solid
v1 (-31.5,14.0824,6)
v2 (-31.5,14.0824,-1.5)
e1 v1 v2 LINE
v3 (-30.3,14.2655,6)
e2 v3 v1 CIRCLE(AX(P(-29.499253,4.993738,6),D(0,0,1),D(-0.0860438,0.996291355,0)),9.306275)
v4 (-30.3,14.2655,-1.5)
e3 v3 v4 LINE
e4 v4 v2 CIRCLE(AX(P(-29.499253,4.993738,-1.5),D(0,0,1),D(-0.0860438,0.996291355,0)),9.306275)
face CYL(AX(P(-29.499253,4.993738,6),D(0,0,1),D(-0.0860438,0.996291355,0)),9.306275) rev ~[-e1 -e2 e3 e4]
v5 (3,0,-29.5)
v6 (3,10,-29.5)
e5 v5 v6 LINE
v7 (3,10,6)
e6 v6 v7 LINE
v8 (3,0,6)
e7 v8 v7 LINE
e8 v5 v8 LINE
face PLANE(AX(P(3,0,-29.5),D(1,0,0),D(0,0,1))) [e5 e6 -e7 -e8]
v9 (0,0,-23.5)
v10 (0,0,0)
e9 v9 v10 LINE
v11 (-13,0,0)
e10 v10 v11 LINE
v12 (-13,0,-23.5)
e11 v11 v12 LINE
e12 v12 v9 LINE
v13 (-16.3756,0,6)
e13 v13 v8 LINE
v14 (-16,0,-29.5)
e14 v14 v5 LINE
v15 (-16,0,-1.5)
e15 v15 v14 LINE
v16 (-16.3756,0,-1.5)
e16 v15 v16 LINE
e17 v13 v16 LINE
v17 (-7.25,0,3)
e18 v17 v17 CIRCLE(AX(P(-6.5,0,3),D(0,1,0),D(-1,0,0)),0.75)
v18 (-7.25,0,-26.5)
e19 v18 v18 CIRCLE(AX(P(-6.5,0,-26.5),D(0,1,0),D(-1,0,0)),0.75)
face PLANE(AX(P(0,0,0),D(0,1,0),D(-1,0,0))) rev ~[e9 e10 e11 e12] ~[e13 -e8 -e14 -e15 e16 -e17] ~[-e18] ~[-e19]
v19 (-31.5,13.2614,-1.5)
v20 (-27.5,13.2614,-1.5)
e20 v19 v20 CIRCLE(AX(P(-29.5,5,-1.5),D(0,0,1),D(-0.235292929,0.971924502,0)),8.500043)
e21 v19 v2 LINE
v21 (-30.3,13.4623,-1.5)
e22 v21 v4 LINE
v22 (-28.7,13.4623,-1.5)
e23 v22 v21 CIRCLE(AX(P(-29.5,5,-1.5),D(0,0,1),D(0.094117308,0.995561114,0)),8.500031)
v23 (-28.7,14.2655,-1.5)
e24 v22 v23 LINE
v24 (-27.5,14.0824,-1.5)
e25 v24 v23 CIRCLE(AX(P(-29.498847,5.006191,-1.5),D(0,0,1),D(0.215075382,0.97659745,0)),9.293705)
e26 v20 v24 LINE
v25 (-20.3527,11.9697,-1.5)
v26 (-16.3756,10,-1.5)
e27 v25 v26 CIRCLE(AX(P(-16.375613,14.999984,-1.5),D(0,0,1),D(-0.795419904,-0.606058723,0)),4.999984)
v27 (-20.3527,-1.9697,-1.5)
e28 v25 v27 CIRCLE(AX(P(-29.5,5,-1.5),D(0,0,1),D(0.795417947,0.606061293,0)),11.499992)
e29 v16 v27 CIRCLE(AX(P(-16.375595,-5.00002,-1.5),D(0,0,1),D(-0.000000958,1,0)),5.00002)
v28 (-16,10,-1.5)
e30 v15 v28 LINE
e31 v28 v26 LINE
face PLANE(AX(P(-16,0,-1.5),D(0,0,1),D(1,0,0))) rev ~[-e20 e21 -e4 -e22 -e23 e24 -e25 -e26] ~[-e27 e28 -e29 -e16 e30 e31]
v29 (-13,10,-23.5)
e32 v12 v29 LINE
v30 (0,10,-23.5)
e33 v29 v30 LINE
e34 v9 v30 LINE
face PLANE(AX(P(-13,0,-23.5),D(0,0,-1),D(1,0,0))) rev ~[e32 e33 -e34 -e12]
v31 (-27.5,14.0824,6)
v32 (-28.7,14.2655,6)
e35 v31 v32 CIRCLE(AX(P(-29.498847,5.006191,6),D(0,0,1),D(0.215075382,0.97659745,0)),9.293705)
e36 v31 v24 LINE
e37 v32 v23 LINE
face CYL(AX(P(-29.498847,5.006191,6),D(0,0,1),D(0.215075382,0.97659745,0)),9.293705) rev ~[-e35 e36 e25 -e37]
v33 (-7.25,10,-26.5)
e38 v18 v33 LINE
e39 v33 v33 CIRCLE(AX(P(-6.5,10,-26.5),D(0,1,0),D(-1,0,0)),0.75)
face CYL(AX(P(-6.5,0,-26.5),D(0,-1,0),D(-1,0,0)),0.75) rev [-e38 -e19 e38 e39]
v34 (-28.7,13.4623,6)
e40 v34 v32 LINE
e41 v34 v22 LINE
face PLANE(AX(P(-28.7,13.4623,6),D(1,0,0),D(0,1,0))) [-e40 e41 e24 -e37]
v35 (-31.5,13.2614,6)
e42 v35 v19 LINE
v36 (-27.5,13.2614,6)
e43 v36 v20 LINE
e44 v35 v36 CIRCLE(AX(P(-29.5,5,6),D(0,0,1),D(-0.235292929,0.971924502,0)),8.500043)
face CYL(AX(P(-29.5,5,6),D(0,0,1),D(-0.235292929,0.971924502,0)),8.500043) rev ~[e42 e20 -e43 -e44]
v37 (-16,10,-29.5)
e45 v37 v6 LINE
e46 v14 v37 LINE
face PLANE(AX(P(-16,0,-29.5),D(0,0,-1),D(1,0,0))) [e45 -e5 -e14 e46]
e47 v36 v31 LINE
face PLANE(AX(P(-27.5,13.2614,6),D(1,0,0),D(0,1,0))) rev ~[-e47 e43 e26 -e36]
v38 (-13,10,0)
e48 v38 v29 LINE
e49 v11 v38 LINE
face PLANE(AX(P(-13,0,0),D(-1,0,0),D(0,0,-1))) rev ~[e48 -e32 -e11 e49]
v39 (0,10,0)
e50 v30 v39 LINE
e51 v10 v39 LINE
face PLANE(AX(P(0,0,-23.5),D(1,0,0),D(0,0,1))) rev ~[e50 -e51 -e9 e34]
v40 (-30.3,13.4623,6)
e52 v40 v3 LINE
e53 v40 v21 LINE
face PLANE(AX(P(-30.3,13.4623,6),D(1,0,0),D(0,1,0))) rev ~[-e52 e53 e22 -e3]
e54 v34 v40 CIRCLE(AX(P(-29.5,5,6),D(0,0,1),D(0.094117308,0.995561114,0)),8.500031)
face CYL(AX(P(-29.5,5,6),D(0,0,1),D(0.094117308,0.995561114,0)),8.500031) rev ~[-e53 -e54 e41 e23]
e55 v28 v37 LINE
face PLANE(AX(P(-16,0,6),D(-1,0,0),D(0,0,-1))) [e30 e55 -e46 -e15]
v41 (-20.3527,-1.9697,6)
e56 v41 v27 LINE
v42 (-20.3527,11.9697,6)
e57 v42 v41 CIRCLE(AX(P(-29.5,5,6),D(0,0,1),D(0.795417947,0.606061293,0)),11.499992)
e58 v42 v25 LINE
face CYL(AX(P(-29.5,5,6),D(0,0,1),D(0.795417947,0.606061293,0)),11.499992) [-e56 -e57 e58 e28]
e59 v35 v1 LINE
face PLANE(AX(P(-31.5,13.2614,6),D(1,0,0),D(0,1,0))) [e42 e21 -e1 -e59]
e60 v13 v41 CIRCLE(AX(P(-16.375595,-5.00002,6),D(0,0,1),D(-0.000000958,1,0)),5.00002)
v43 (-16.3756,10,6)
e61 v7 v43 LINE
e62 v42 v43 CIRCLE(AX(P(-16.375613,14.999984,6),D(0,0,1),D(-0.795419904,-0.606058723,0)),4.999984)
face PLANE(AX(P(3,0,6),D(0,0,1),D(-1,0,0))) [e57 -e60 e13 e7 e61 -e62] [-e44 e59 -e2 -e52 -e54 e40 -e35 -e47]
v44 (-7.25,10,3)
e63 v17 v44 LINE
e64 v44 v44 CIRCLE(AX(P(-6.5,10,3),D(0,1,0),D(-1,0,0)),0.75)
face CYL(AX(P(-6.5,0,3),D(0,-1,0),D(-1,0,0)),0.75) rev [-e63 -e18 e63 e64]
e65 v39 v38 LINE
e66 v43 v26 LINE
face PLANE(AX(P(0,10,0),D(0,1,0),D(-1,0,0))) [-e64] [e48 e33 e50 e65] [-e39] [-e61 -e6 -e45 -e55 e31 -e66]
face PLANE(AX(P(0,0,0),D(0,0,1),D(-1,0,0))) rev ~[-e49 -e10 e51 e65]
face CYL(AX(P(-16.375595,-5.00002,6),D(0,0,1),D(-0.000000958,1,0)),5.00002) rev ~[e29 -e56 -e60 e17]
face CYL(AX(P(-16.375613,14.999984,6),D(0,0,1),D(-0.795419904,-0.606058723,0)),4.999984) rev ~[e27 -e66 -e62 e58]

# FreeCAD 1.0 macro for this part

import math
import FreeCAD as App
import Part
import Sketcher
from FreeCAD import Vector
Q = App.Units.Quantity

doc = App.newDocument("Part")
body = doc.addObject("PartDesign::Body", "Body")

# Sketch on XZ plane
sketch1 = body.newObject("Sketcher::SketchObject", "Sketch")
sketch1.AttachmentSupport = (doc.getObject("XZ_Plane"), [""])
sketch1.MapMode = "FlatFace"
sketch1.addGeometry([
    Part.LineSegment(Vector(-16, 6, 0), Vector(3, 6, 0)),  # 0
    Part.LineSegment(Vector(3, 6, 0), Vector(3, -29.5, 0)),  # 1
    Part.LineSegment(Vector(3, -29.5, 0), Vector(-16, -29.5, 0)),  # 2
    Part.LineSegment(Vector(-16, -29.5, 0), Vector(-16, 6, 0)),  # 3
    Part.Circle(Vector(-6.5, -26.5, 0), Vector(0, 0, 1), 0.8),  # 4
    Part.LineSegment(Vector(0, -23.5, 0), Vector(0, 0, 0)),  # 5
    Part.LineSegment(Vector(0, 0, 0), Vector(-13, 0, 0)),  # 6
    Part.LineSegment(Vector(-13, 0, 0), Vector(-13, -23.5, 0)),  # 7
    Part.LineSegment(Vector(-13, -23.5, 0), Vector(0, -23.5, 0)),  # 8
    Part.Circle(Vector(-6.5, 3, 0), Vector(0, 0, 1), 0.8),  # 9
], False)
sketch1.addConstraint([
    Sketcher.Constraint("Coincident", 0, 2, 1, 1),
    Sketcher.Constraint("Coincident", 1, 2, 2, 1),
    Sketcher.Constraint("Coincident", 2, 2, 3, 1),
    Sketcher.Constraint("Coincident", 3, 2, 0, 1),
    Sketcher.Constraint("Coincident", 5, 2, 6, 1),
    Sketcher.Constraint("Coincident", 6, 2, 7, 1),
    Sketcher.Constraint("Coincident", 7, 2, 8, 1),
    Sketcher.Constraint("Coincident", 8, 2, 5, 1),
    Sketcher.Constraint("Horizontal", 0),
    Sketcher.Constraint("Vertical", 1),
    Sketcher.Constraint("Horizontal", 2),
    Sketcher.Constraint("Vertical", 3),
    Sketcher.Constraint("Vertical", 5),
    Sketcher.Constraint("Horizontal", 6),
    Sketcher.Constraint("Vertical", 7),
    Sketcher.Constraint("Horizontal", 8),
    Sketcher.Constraint("Coincident", 5, 2, -1, 1),
    Sketcher.Constraint("Equal", 4, 9),
    Sketcher.Constraint("Vertical", 4, 3, 9, 3),
    Sketcher.Constraint("Diameter", 4, Q("1.5 mm")),
    Sketcher.Constraint("DistanceX", 0, 1, 0, 2, Q("19 mm")),
    Sketcher.Constraint("DistanceX", 6, 2, 6, 1, Q("13 mm")),
    Sketcher.Constraint("DistanceY", 1, 2, 1, 1, Q("35.5 mm")),
    Sketcher.Constraint("DistanceY", 5, 1, 5, 2, Q("23.5 mm")),
    Sketcher.Constraint("DistanceY", -1, 1, 9, 3, Q("3 mm")),
    Sketcher.Constraint("DistanceX", -1, 1, 0, 2, Q("3 mm")),
    Sketcher.Constraint("DistanceY", -1, 1, 0, 2, Q("6 mm")),
    Sketcher.Constraint("DistanceY", 1, 2, 4, 3, Q("3 mm")),
    Sketcher.Constraint("DistanceX", 4, 3, -1, 1, Q("6.5 mm")),
])
pad1 = body.newObject("PartDesign::Pad", "Pad")
pad1.Profile = sketch1
pad1.Length = 10
pad1.Reversed = True

# Sketch on XY plane
sketch2 = body.newObject("Sketcher::SketchObject", "Sketch001")
sketch2.AttachmentSupport = (doc.getObject("XY_Plane"), [""])
sketch2.MapMode = "FlatFace"
sketch2.AttachmentOffset = App.Placement(Vector(0, 0, 6), App.Rotation())
sketch2.addGeometry([
    Part.LineSegment(Vector(-16.38, 0, 0), Vector(-16, 0, 0)),  # 0
    Part.LineSegment(Vector(-16, 0, 0), Vector(-16, 10, 0)),  # 1
    Part.LineSegment(Vector(-16, 10, 0), Vector(-16.38, 10, 0)),  # 2
    Part.ArcOfCircle(Part.Circle(Vector(-16.38, 15, 0), Vector(0, 0, 1), 5), math.radians(-143), math.radians(-90)),  # 3
    Part.ArcOfCircle(Part.Circle(Vector(-29.5, 5, 0), Vector(0, 0, 1), 11.5), math.radians(37), math.radians(323)),  # 4
    Part.ArcOfCircle(Part.Circle(Vector(-16.38, -5, 0), Vector(0, 0, 1), 5), math.radians(90), math.radians(143)),  # 5
    Part.LineSegment(Vector(-27.5, 14.08, 0), Vector(-27.5, 13.26, 0)),  # 6
    Part.ArcOfCircle(Part.Circle(Vector(-29.5, 5, 0), Vector(0, 0, 1), 8.5), math.radians(104), math.radians(436)),  # 7
    Part.LineSegment(Vector(-31.5, 13.26, 0), Vector(-31.5, 14.08, 0)),  # 8
    Part.ArcOfCircle(Part.Circle(Vector(-29.5, 4.99, 0), Vector(0, 0, 1), 9.31), math.radians(94.94), math.radians(102.41)),  # 9
    Part.LineSegment(Vector(-30.3, 14.27, 0), Vector(-30.3, 13.46, 0)),  # 10
    Part.ArcOfCircle(Part.Circle(Vector(-29.5, 5, 0), Vector(0, 0, 1), 8.5), math.radians(84.6), math.radians(95.4)),  # 11
    Part.LineSegment(Vector(-28.7, 13.46, 0), Vector(-28.7, 14.27, 0)),  # 12
    Part.ArcOfCircle(Part.Circle(Vector(-29.5, 5.01, 0), Vector(0, 0, 1), 9.29), math.radians(77.58), math.radians(85.07)),  # 13
], False)
sketch2.addConstraint([
    Sketcher.Constraint("Coincident", 0, 2, 1, 1),
    Sketcher.Constraint("Coincident", 1, 2, 2, 1),
    Sketcher.Constraint("Tangent", 2, 2, 3, 2),
    Sketcher.Constraint("Tangent", 3, 1, 4, 1),
    Sketcher.Constraint("Tangent", 4, 2, 5, 2),
    Sketcher.Constraint("Tangent", 5, 1, 0, 1),
    Sketcher.Constraint("Coincident", 6, 2, 7, 2),
    Sketcher.Constraint("Coincident", 7, 1, 8, 1),
    Sketcher.Constraint("Coincident", 8, 2, 9, 2),
    Sketcher.Constraint("Coincident", 9, 1, 10, 1),
    Sketcher.Constraint("Coincident", 10, 2, 11, 2),
    Sketcher.Constraint("Coincident", 11, 1, 12, 1),
    Sketcher.Constraint("Coincident", 12, 2, 13, 2),
    Sketcher.Constraint("Coincident", 13, 1, 6, 1),
    Sketcher.Constraint("Horizontal", 0),
    Sketcher.Constraint("Vertical", 1),
    Sketcher.Constraint("Horizontal", 2),
    Sketcher.Constraint("Vertical", 6),
    Sketcher.Constraint("Vertical", 8),
    Sketcher.Constraint("Vertical", 10),
    Sketcher.Constraint("Vertical", 12),
    Sketcher.Constraint("Coincident", 7, 3, 4, 3),
    Sketcher.Constraint("Coincident", 11, 3, 4, 3),
    Sketcher.Constraint("Equal", 3, 5),
    Sketcher.Constraint("Equal", 7, 11),
    Sketcher.Constraint("PointOnObject", 0, 2, -1),
    Sketcher.Constraint("Horizontal", 6, 2, 7, 1),
    Sketcher.Constraint("Horizontal", 10, 2, 11, 1),
    Sketcher.Constraint("Horizontal", 9, 1, 12, 2),
    Sketcher.Constraint("Horizontal", 8, 2, 13, 1),
    Sketcher.Constraint("Vertical", 3, 3, 5, 3),
    Sketcher.Constraint("Radius", 3, Q("5 mm")),
    Sketcher.Constraint("Radius", 4, Q("11.5 mm")),
    Sketcher.Constraint("Radius", 7, Q("8.5 mm")),
    Sketcher.Constraint("DistanceY", -1, 1, 4, 3, Q("5 mm")),
    Sketcher.Constraint("DistanceX", 8, 2, 9, 1, Q("1.2 mm")),
    Sketcher.Constraint("DistanceX", 9, 1, 4, 3, Q("0.8 mm")),
    Sketcher.Constraint("DistanceX", 0, 2, -1, 1, Q("16 mm")),
    Sketcher.Constraint("DistanceX", 4, 3, -1, 1, Q("29.5 mm")),
    Sketcher.Constraint("Radius", 9, Q("9.3063 mm")),
    Sketcher.Constraint("Radius", 13, Q("9.2937 mm")),
    Sketcher.Constraint("DistanceY", 6, 2, 6, 1, Q("0.821 mm")),
    Sketcher.Constraint("DistanceY", 10, 2, 10, 1, Q("0.8032 mm")),
])
pad2 = body.newObject("PartDesign::Pad", "Pad001")
pad2.Profile = sketch2
pad2.Length = 7.5
pad2.Reversed = True

doc.recompute()
